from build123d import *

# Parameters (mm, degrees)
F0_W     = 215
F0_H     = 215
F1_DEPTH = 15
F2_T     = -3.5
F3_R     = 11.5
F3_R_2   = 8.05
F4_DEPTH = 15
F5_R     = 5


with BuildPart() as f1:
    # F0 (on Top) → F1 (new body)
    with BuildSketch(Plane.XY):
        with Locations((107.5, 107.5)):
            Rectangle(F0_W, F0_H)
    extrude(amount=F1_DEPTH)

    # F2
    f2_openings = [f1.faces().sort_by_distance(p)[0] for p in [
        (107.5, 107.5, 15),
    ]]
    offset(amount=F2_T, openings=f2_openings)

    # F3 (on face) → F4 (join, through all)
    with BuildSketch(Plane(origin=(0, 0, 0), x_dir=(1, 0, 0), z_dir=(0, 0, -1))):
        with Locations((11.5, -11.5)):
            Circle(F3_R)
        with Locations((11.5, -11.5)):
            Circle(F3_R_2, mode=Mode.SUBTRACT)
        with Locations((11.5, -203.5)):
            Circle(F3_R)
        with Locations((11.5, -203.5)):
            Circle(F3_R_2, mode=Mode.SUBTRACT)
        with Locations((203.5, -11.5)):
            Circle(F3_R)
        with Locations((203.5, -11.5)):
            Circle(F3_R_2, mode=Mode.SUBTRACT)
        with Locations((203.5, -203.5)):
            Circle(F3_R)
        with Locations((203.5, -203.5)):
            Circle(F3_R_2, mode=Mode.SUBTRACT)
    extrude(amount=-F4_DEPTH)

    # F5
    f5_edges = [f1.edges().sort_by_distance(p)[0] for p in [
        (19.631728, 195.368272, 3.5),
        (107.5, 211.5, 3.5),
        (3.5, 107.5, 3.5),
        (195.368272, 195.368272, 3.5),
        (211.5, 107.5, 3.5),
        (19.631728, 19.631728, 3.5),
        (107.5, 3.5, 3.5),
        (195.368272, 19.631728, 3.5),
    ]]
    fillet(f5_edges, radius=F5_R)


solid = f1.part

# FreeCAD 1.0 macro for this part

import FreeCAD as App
import Part
import Sketcher
Q = App.Units.Quantity


def edges_at(feature, points):
    """Names of the edges that pass closest to the given points."""
    edges = feature.Shape.Edges
    near = lambda p: min(range(len(edges)), key=lambda i: edges[i].distToShape(Part.Vertex(*p))[0])
    return sorted({f"Edge{near(p) + 1}" for p in points})


def faces_at(feature, points):
    """Names of the faces that lie closest to the given points."""
    faces = feature.Shape.Faces
    near = lambda p: min(range(len(faces)), key=lambda i: faces[i].distToShape(Part.Vertex(*p))[0])
    return sorted({f"Face{near(p) + 1}" for p in points})


def add_polygon(sketch, points):
    """Adds a closed chain of lines whose ends are joined by coincident constraints."""
    first, n = sketch.GeometryCount, len(points)
    for a, b in zip(points, points[1:] + points[:1]):
        sketch.addGeometry(Part.LineSegment(App.Vector(*a, 0), App.Vector(*b, 0)), False)
    for i in range(n):
        sketch.addConstraint(Sketcher.Constraint("Coincident", first + i, 2, first + (i + 1) % n, 1))

doc = App.newDocument("Part")
params = doc.addObject("Spreadsheet::Sheet", "Params")
for row, (alias, value) in enumerate([
    ("sketch1_width", "215 mm"),
    ("pad1_length", "15 mm"),
    ("thickness_wall", "3.5 mm"),
    ("sketch2_diameter", "23 mm"),
    ("sketch2_diameter2", "16.1 mm"),
    ("pad2_length", "15 mm"),
    ("fillet_radius", "5 mm"),
], start=1):
    params.set(f"A{row}", alias)
    params.set(f"B{row}", "=" + value)
    params.setAlias(f"B{row}", alias)

body = doc.addObject("PartDesign::Body", "Body")

# Sketch on XY plane
sketch1 = doc.addObject("Sketcher::SketchObject", "Sketch")
body.addObject(sketch1)
sketch1.AttachmentSupport = (doc.XY_Plane, [""])
sketch1.MapMode = "FlatFace"
add_polygon(sketch1, [(0, 215), (0, 0), (215, 0), (215, 215)])  # lines 0-3
sketch1.addConstraint([
    Sketcher.Constraint("Vertical", 0),
    Sketcher.Constraint("Horizontal", 1),
    Sketcher.Constraint("Vertical", 2),
    Sketcher.Constraint("Horizontal", 3),
    Sketcher.Constraint("Coincident", 0, 2, -1, 1),
    Sketcher.Constraint("Equal", 3, 0),
    Sketcher.Constraint("DistanceX", 1, 1, 1, 2, Q("215 mm")),
])
sketch1.setExpression("Constraints[10]", "Params.sketch1_width")
pad1 = doc.addObject("PartDesign::Pad", "Pad")
body.addObject(pad1)
pad1.Profile = sketch1
pad1.setExpression("Length", "Params.pad1_length")
doc.recompute()

thickness = doc.addObject("PartDesign::Thickness", "Thickness")
body.addObject(thickness)
thickness.Base = (pad1, faces_at(pad1, [(107.5, 107.5, 15)]))
thickness.setExpression("Value", "Params.thickness_wall")
thickness.Reversed = True
thickness.Join = "Arc"

# Sketch on XY plane
sketch2 = doc.addObject("Sketcher::SketchObject", "Sketch001")
body.addObject(sketch2)
sketch2.AttachmentSupport = (doc.XY_Plane, [""])
sketch2.MapMode = "FlatFace"
sketch2.addGeometry([
    Part.Circle(App.Vector(12, 12, 0), App.Vector(0, 0, 1), 12),  # 0
    Part.Circle(App.Vector(12, 12, 0), App.Vector(0, 0, 1), 8),  # 1
    Part.Circle(App.Vector(12, 204, 0), App.Vector(0, 0, 1), 12),  # 2
    Part.Circle(App.Vector(12, 204, 0), App.Vector(0, 0, 1), 8),  # 3
    Part.Circle(App.Vector(204, 12, 0), App.Vector(0, 0, 1), 12),  # 4
    Part.Circle(App.Vector(204, 12, 0), App.Vector(0, 0, 1), 8),  # 5
    Part.Circle(App.Vector(204, 204, 0), App.Vector(0, 0, 1), 12),  # 6
    Part.Circle(App.Vector(204, 204, 0), App.Vector(0, 0, 1), 8),  # 7
], False)
sketch2.addConstraint([
    Sketcher.Constraint("Coincident", 1, 3, 0, 3),
    Sketcher.Constraint("Coincident", 3, 3, 2, 3),
    Sketcher.Constraint("Coincident", 5, 3, 4, 3),
    Sketcher.Constraint("Coincident", 7, 3, 6, 3),
    Sketcher.Constraint("Equal", 0, 2),
    Sketcher.Constraint("Equal", 1, 3),
    Sketcher.Constraint("Equal", 2, 4),
    Sketcher.Constraint("Equal", 3, 5),
    Sketcher.Constraint("Equal", 4, 6),
    Sketcher.Constraint("Equal", 5, 7),
    Sketcher.Constraint("Horizontal", 1, 3, 4, 3),
    Sketcher.Constraint("Horizontal", 3, 3, 6, 3),
    Sketcher.Constraint("Vertical", 1, 3, 2, 3),
    Sketcher.Constraint("Vertical", 5, 3, 6, 3),
    Sketcher.Constraint("Diameter", 0, Q("23 mm")),
    Sketcher.Constraint("Diameter", 1, Q("16.1 mm")),
    Sketcher.Constraint("DistanceY", 0, 3, 2, 3, Q("192 mm")),
    Sketcher.Constraint("DistanceX", 0, 3, 4, 3, Q("192 mm")),
    Sketcher.Constraint("DistanceX", -1, 1, 0, 3, Q("11.5 mm")),
    Sketcher.Constraint("DistanceY", -1, 1, 0, 3, Q("11.5 mm")),
])
sketch2.setExpression("Constraints[14]", "Params.sketch2_diameter")
sketch2.setExpression("Constraints[15]", "Params.sketch2_diameter2")
pad2 = doc.addObject("PartDesign::Pad", "Pad001")
body.addObject(pad2)
pad2.Profile = sketch2
pad2.setExpression("Length", "Params.pad2_length")
doc.recompute()

fillet = doc.addObject("PartDesign::Fillet", "Fillet")
body.addObject(fillet)
fillet.Base = (pad2, edges_at(pad2, [
    (19.632, 195.368, 3.5),
    (107.5, 211.5, 3.5),
    (3.5, 107.5, 3.5),
    (195.368, 195.368, 3.5),
    (211.5, 107.5, 3.5),
    (19.632, 19.632, 3.5),
    (107.5, 3.5, 3.5),
    (195.368, 19.632, 3.5),
]))
fillet.setExpression("Radius", "Params.fillet_radius")

doc.recompute()
